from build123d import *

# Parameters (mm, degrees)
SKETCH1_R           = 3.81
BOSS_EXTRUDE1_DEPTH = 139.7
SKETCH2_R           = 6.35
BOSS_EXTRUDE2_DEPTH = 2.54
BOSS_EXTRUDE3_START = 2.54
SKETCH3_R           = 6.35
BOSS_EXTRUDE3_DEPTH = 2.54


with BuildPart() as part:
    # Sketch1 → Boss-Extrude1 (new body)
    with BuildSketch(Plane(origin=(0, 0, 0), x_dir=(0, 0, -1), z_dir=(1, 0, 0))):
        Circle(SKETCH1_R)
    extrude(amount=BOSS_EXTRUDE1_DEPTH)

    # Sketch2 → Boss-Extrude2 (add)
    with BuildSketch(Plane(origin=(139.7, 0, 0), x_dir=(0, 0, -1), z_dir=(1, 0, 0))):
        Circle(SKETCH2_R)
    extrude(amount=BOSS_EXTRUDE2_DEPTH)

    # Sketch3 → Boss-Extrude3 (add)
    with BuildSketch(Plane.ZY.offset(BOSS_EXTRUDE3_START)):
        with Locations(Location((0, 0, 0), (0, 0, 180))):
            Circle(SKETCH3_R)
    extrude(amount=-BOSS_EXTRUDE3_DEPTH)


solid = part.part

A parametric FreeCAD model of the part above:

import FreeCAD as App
import Part
import Sketcher

V = App.Vector
Q = App.Units.Quantity

doc = App.newDocument("Part")
body = doc.addObject("PartDesign::Body", "Body")

sketch1 = body.newObject("Sketcher::SketchObject", "Sketch")
sketch1.AttachmentSupport = (doc.getObject("YZ_Plane"), [""])
sketch1.MapMode = "FlatFace"
sketch1.addGeometry(Part.Circle(V(0, 0, 0), V(0, 0, 1), 3.8), False)
sketch1.addConstraint([
    Sketcher.Constraint("Coincident", 0, 3, -1, 1),
    Sketcher.Constraint("Diameter", 0, Q("0.3 in")),
])
pad1 = body.newObject("PartDesign::Pad", "Pad")
pad1.Profile = sketch1
pad1.Length = Q("5.5 in")

sketch2 = body.newObject("Sketcher::SketchObject", "Sketch001")
sketch2.AttachmentSupport = (doc.getObject("YZ_Plane"), [""])
sketch2.MapMode = "FlatFace"
sketch2.AttachmentOffset = App.Placement(V(0, 0, 5.5 * 25.4), App.Rotation())
sketch2.addGeometry(Part.Circle(V(0, 0, 0), V(0, 0, 1), 6), False)
sketch2.addConstraint([
    Sketcher.Constraint("Coincident", 0, 3, -1, 1),
    Sketcher.Constraint("Diameter", 0, Q("0.5 in")),
])
pad2 = body.newObject("PartDesign::Pad", "Pad001")
pad2.Profile = sketch2
pad2.Length = Q("0.1 in")

sketch3 = body.newObject("Sketcher::SketchObject", "Sketch002")
sketch3.AttachmentSupport = (doc.getObject("YZ_Plane"), [""])
sketch3.MapMode = "FlatFace"
sketch3.AttachmentOffset = App.Placement(V(0, 0, -0.1 * 25.4), App.Rotation())
sketch3.addGeometry(Part.Circle(V(0, 0, 0), V(0, 0, 1), 6), False)
sketch3.addConstraint([
    Sketcher.Constraint("Coincident", 0, 3, -1, 1),
    Sketcher.Constraint("Diameter", 0, Q("0.5 in")),
])
pad3 = body.newObject("PartDesign::Pad", "Pad002")
pad3.Profile = sketch3
pad3.Length = Q("0.1 in")

doc.recompute()
